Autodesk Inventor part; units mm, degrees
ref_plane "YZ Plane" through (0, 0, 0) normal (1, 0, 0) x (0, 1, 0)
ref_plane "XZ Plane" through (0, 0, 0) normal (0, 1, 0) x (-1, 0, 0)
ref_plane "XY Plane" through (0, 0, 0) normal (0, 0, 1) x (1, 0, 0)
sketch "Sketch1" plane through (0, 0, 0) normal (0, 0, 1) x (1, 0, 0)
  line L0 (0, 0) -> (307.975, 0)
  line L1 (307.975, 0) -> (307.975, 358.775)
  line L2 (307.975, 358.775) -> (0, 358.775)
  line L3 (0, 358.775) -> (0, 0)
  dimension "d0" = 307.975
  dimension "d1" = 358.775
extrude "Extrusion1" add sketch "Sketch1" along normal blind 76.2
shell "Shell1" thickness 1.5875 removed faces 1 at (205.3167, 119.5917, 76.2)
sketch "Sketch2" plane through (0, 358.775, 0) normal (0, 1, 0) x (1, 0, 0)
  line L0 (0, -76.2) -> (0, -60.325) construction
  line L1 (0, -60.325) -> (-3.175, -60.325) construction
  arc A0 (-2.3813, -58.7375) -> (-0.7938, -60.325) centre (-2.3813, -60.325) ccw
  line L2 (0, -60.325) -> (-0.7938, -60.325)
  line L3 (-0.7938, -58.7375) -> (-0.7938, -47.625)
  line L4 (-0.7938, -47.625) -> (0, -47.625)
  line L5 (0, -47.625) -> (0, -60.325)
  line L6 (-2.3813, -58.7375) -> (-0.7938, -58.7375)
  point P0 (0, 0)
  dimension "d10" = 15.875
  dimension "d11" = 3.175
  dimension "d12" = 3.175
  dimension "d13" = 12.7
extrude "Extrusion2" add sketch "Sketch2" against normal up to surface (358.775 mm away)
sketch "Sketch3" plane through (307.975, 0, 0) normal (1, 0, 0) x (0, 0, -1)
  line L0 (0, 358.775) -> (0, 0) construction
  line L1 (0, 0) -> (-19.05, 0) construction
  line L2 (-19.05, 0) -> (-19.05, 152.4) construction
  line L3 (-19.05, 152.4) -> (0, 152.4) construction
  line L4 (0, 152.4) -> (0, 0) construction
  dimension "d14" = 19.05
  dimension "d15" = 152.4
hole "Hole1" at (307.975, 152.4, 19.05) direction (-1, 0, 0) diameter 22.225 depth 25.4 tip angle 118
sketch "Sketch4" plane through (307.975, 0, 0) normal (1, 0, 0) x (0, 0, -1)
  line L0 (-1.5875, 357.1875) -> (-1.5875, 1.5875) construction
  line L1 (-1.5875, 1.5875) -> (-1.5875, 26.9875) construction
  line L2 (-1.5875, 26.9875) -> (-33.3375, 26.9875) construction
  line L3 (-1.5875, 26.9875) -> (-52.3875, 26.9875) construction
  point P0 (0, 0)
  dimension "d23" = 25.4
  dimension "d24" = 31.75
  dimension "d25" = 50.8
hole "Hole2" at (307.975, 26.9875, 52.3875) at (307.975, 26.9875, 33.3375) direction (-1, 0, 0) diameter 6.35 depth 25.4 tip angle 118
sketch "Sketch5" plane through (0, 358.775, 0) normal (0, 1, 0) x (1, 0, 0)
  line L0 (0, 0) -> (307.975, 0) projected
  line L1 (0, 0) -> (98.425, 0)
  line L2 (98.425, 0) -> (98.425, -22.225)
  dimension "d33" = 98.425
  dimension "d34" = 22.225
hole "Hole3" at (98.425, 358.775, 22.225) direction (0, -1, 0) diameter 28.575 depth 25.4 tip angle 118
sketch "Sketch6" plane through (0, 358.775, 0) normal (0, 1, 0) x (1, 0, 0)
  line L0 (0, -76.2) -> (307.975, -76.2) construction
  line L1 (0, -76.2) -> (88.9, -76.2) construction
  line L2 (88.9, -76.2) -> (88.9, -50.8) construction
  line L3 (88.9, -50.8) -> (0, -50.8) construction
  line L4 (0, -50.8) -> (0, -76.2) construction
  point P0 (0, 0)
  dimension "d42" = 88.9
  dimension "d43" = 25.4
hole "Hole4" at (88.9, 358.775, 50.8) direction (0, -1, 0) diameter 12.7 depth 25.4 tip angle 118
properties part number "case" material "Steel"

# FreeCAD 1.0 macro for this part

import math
import FreeCAD as App
import Part
import Sketcher
Q = App.Units.Quantity


def faces_at(feature, points):
    """Names of the faces that lie closest to the given points."""
    faces = feature.Shape.Faces
    near = lambda p: min(range(len(faces)), key=lambda i: faces[i].distToShape(Part.Vertex(*p))[0])
    return sorted({f"Face{near(p) + 1}" for p in points})

doc = App.newDocument("Part")
params = doc.addObject("Spreadsheet::Sheet", "Params")
for row, (alias, value) in enumerate([
    ("sketch1_width", "12.125 in"),
    ("sketch1_height", "14.125 in"),
    ("pad1_length", "3 in"),
    ("thickness_wall", "0.0625 in"),
    ("sketch2_height", "0.5 in"),
    ("sketch2_radius", "0.0625 in"),
    ("sketch2_width", "0.031252 in"),
    ("pad2_length", "14.125 in"),
    ("sketch3_diameter", "0.875 in"),
    ("hole_diameter", "0.875 in"),
    ("hole_depth", "1 in"),
    ("sketch4_diameter", "0.25 in"),
    ("hole2_diameter", "0.25 in"),
    ("hole2_depth", "1 in"),
    ("sketch5_diameter", "1.125 in"),
    ("hole3_diameter", "1.125 in"),
    ("hole3_depth", "1 in"),
    ("sketch6_diameter", "0.5 in"),
    ("hole4_diameter", "0.5 in"),
    ("hole4_depth", "1 in"),
], start=1):
    params.set(f"A{row}", alias)
    params.set(f"B{row}", "=" + value)
    params.setAlias(f"B{row}", alias)

body = doc.addObject("PartDesign::Body", "Body")

# Sketch on XY plane
sketch1 = body.newObject("Sketcher::SketchObject", "Sketch")
sketch1.AttachmentSupport = (doc.getObject("XY_Plane"), [""])
sketch1.MapMode = "FlatFace"
sketch1.addGeometry([
    Part.LineSegment(App.Vector(0, 359, 0), App.Vector(0, 0, 0)),
    Part.LineSegment(App.Vector(0, 0, 0), App.Vector(308, 0, 0)),
    Part.LineSegment(App.Vector(308, 0, 0), App.Vector(308, 359, 0)),
    Part.LineSegment(App.Vector(308, 359, 0), App.Vector(0, 359, 0)),
], False)
sketch1.addConstraint([
    Sketcher.Constraint("Coincident", 0, 2, 1, 1),
    Sketcher.Constraint("Coincident", 1, 2, 2, 1),
    Sketcher.Constraint("Coincident", 2, 2, 3, 1),
    Sketcher.Constraint("Coincident", 3, 2, 0, 1),
    Sketcher.Constraint("Vertical", 0),
    Sketcher.Constraint("Horizontal", 1),
    Sketcher.Constraint("Vertical", 2),
    Sketcher.Constraint("Horizontal", 3),
    Sketcher.Constraint("Coincident", 0, 2, -1, 1),
    Sketcher.Constraint("DistanceX", 1, 1, 1, 2, Q("12.125 in")),
    Sketcher.Constraint("DistanceY", 0, 2, 0, 1, Q("14.125 in")),
])
sketch1.setExpression("Constraints[9]", "Params.sketch1_width")
sketch1.setExpression("Constraints[10]", "Params.sketch1_height")
pad1 = body.newObject("PartDesign::Pad", "Pad")
pad1.Profile = sketch1
pad1.setExpression("Length", "Params.pad1_length")
doc.recompute()

thickness = body.newObject("PartDesign::Thickness", "Thickness")
thickness.Base = (pad1, faces_at(pad1, [(205.317, 119.592, 76.2)]))
thickness.setExpression("Value", "Params.thickness_wall")
thickness.Reversed = True
thickness.Join = "Intersection"

# Sketch on XZ plane
sketch2 = body.newObject("Sketcher::SketchObject", "Sketch001")
sketch2.AttachmentSupport = (doc.getObject("XZ_Plane"), [""])
sketch2.MapMode = "FlatFace"
sketch2.AttachmentOffset = App.Placement(App.Vector(0, 0, -14.125 * 25.4), App.Rotation())
sketch2.addGeometry([
    Part.LineSegment(App.Vector(-0.8, 58.7, 0), App.Vector(-2.4, 58.7, 0)),  # 0
    Part.ArcOfCircle(Part.Circle(App.Vector(-2.4, 60.3, 0), App.Vector(0, 0, 1), 1.6), math.radians(0), math.radians(270)),  # 1
    Part.LineSegment(App.Vector(-0.8, 60.3, 0), App.Vector(0, 60.3, 0)),  # 2
    Part.LineSegment(App.Vector(0, 60.3, 0), App.Vector(0, 47.6, 0)),  # 3
    Part.LineSegment(App.Vector(0, 47.6, 0), App.Vector(-0.8, 47.6, 0)),  # 4
    Part.LineSegment(App.Vector(-0.8, 47.6, 0), App.Vector(-0.8, 58.7, 0)),  # 5
], False)
sketch2.addConstraint([
    Sketcher.Constraint("Tangent", 0, 2, 1, 2),
    Sketcher.Constraint("Coincident", 1, 1, 2, 1),
    Sketcher.Constraint("Coincident", 2, 2, 3, 1),
    Sketcher.Constraint("Coincident", 3, 2, 4, 1),
    Sketcher.Constraint("Coincident", 4, 2, 5, 1),
    Sketcher.Constraint("Coincident", 5, 2, 0, 1),
    Sketcher.Constraint("Horizontal", 0),
    Sketcher.Constraint("Horizontal", 2),
    Sketcher.Constraint("Vertical", 3),
    Sketcher.Constraint("Horizontal", 4),
    Sketcher.Constraint("Vertical", 5),
    Sketcher.Constraint("PointOnObject", 2, 2, -2),
    Sketcher.Constraint("Vertical", 1, 1, 4, 2),
    Sketcher.Constraint("DistanceY", 3, 2, 3, 1, Q("0.5 in")),
    Sketcher.Constraint("Radius", 1, Q("0.0625 in")),
    Sketcher.Constraint("DistanceY", 3, 2, 1, 3, Q("0.5 in")),
    Sketcher.Constraint("DistanceX", 2, 1, 2, 2, Q("0.031252 in")),
    Sketcher.Constraint("DistanceY", -1, 1, 1, 3, Q("2.375 in")),
])
sketch2.setExpression("Constraints[13]", "Params.sketch2_height")
sketch2.setExpression("Constraints[14]", "Params.sketch2_radius")
sketch2.setExpression("Constraints[16]", "Params.sketch2_width")
pad2 = body.newObject("PartDesign::Pad", "Pad001")
pad2.Profile = sketch2
pad2.setExpression("Length", "Params.pad2_length")

# Sketch on YZ plane
sketch3 = body.newObject("Sketcher::SketchObject", "Sketch002")
sketch3.AttachmentSupport = (doc.getObject("YZ_Plane"), [""])
sketch3.MapMode = "FlatFace"
sketch3.AttachmentOffset = App.Placement(App.Vector(0, 0, 12.125 * 25.4), App.Rotation())
sketch3.addGeometry(Part.Circle(App.Vector(152, 19, 0), App.Vector(0, 0, 1), 11), False)
sketch3.addConstraint([
    Sketcher.Constraint("Diameter", 0, Q("0.875 in")),
    Sketcher.Constraint("DistanceX", -1, 1, 0, 3, Q("6 in")),
    Sketcher.Constraint("DistanceY", -1, 1, 0, 3, Q("0.75 in")),
])
sketch3.setExpression("Constraints[0]", "Params.sketch3_diameter")
doc.recompute()
hole = body.newObject("PartDesign::Hole", "Hole")
hole.Profile = sketch3
hole.ThreadType = "None"
hole.setExpression("Diameter", "Params.hole_diameter")
hole.DepthType = "Dimension"
hole.setExpression("Depth", "Params.hole_depth")
hole.DrillPoint = "Angled"
hole.DrillPointAngle = 118

# Sketch on YZ plane
sketch4 = body.newObject("Sketcher::SketchObject", "Sketch003")
sketch4.AttachmentSupport = (doc.getObject("YZ_Plane"), [""])
sketch4.MapMode = "FlatFace"
sketch4.AttachmentOffset = App.Placement(App.Vector(0, 0, 12.125 * 25.4), App.Rotation())
sketch4.addGeometry([
    Part.Circle(App.Vector(27, 52.4, 0), App.Vector(0, 0, 1), 3.2),
    Part.Circle(App.Vector(27, 33.3, 0), App.Vector(0, 0, 1), 3.2),
], False)
sketch4.addConstraint([
    Sketcher.Constraint("Equal", 0, 1),
    Sketcher.Constraint("Vertical", 0, 3, 1, 3),
    Sketcher.Constraint("Diameter", 0, Q("0.25 in")),
    Sketcher.Constraint("DistanceY", 1, 3, 0, 3, Q("0.75 in")),
    Sketcher.Constraint("DistanceX", -1, 1, 0, 3, Q("1.0625 in")),
    Sketcher.Constraint("DistanceY", -1, 1, 0, 3, Q("2.0625 in")),
])
sketch4.setExpression("Constraints[2]", "Params.sketch4_diameter")
doc.recompute()
hole2 = body.newObject("PartDesign::Hole", "Hole001")
hole2.Profile = sketch4
hole2.ThreadType = "None"
hole2.setExpression("Diameter", "Params.hole2_diameter")
hole2.DepthType = "Dimension"
hole2.setExpression("Depth", "Params.hole2_depth")
hole2.DrillPoint = "Angled"
hole2.DrillPointAngle = 118

# Sketch on XZ plane
sketch5 = body.newObject("Sketcher::SketchObject", "Sketch004")
sketch5.AttachmentSupport = (doc.getObject("XZ_Plane"), [""])
sketch5.MapMode = "FlatFace"
sketch5.AttachmentOffset = App.Placement(App.Vector(0, 0, -14.125 * 25.4), App.Rotation())
sketch5.addGeometry(Part.Circle(App.Vector(98, 22, 0), App.Vector(0, 0, 1), 14), False)
sketch5.addConstraint([
    Sketcher.Constraint("Diameter", 0, Q("1.125 in")),
    Sketcher.Constraint("DistanceX", -1, 1, 0, 3, Q("3.875 in")),
    Sketcher.Constraint("DistanceY", -1, 1, 0, 3, Q("0.875 in")),
])
sketch5.setExpression("Constraints[0]", "Params.sketch5_diameter")
doc.recompute()
hole3 = body.newObject("PartDesign::Hole", "Hole002")
hole3.Profile = sketch5
hole3.ThreadType = "None"
hole3.setExpression("Diameter", "Params.hole3_diameter")
hole3.DepthType = "Dimension"
hole3.setExpression("Depth", "Params.hole3_depth")
hole3.DrillPoint = "Angled"
hole3.DrillPointAngle = 118
hole3.Reversed = True

# Sketch on XZ plane
sketch6 = body.newObject("Sketcher::SketchObject", "Sketch005")
sketch6.AttachmentSupport = (doc.getObject("XZ_Plane"), [""])
sketch6.MapMode = "FlatFace"
sketch6.AttachmentOffset = App.Placement(App.Vector(0, 0, -14.125 * 25.4), App.Rotation())
sketch6.addGeometry(Part.Circle(App.Vector(89, 51, 0), App.Vector(0, 0, 1), 6), False)
sketch6.addConstraint([
    Sketcher.Constraint("Diameter", 0, Q("0.5 in")),
    Sketcher.Constraint("DistanceY", -1, 1, 0, 3, Q("2 in")),
    Sketcher.Constraint("DistanceX", -1, 1, 0, 3, Q("3.5 in")),
])
sketch6.setExpression("Constraints[0]", "Params.sketch6_diameter")
doc.recompute()
hole4 = body.newObject("PartDesign::Hole", "Hole003")
hole4.Profile = sketch6
hole4.ThreadType = "None"
hole4.setExpression("Diameter", "Params.hole4_diameter")
hole4.DepthType = "Dimension"
hole4.setExpression("Depth", "Params.hole4_depth")
hole4.DrillPoint = "Angled"
hole4.DrillPointAngle = 118
hole4.Reversed = True

doc.recompute()
